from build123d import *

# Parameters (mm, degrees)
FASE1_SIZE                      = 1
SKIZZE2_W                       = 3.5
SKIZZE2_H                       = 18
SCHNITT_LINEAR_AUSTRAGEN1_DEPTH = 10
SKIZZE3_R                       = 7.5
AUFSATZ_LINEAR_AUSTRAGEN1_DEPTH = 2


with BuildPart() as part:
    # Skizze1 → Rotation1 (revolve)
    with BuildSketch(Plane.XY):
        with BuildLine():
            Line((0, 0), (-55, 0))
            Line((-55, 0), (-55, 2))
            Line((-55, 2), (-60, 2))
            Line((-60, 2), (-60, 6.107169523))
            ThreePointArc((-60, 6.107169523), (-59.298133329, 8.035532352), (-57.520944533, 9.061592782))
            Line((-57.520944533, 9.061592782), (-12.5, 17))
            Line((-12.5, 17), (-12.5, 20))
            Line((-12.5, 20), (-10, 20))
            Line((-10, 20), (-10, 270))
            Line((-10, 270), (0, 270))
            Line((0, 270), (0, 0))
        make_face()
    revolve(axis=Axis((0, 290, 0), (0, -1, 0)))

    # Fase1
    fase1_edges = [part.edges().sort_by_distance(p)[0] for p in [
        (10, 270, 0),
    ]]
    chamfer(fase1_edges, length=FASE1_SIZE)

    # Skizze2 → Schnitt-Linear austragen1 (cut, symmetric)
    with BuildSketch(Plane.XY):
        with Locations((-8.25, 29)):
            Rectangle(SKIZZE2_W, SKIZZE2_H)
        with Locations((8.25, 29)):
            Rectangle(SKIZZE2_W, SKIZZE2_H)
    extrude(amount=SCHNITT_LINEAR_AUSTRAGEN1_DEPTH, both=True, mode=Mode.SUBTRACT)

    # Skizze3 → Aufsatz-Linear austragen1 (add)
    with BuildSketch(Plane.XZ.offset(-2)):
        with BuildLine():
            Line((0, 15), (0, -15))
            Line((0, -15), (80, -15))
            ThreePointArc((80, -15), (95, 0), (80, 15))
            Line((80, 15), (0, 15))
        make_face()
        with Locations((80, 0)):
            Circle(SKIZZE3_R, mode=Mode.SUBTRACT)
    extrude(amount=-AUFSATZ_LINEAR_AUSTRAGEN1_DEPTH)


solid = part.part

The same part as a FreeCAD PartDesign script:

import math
import FreeCAD as App
import Part
import Sketcher
Q = App.Units.Quantity


def edges_at(feature, points):
    """Names of the edges that pass closest to the given points."""
    edges = feature.Shape.Edges
    near = lambda p: min(range(len(edges)), key=lambda i: edges[i].distToShape(Part.Vertex(*p))[0])
    return sorted({f"Edge{near(p) + 1}" for p in points})


def add_polygon(sketch, points):
    """Adds a closed chain of lines whose ends are joined by coincident constraints."""
    first, n = sketch.GeometryCount, len(points)
    for a, b in zip(points, points[1:] + points[:1]):
        sketch.addGeometry(Part.LineSegment(App.Vector(*a, 0), App.Vector(*b, 0)), False)
    for i in range(n):
        sketch.addConstraint(Sketcher.Constraint("Coincident", first + i, 2, first + (i + 1) % n, 1))

doc = App.newDocument("Part")
body = doc.addObject("PartDesign::Body", "Body")

# Sketch on XY plane
sketch1 = body.newObject("Sketcher::SketchObject", "Sketch")
sketch1.AttachmentSupport = (doc.getObject("XY_Plane"), [""])
sketch1.MapMode = "FlatFace"
sketch1.addGeometry(Part.LineSegment(App.Vector(-55, 0, 0), App.Vector(0, 0, 0)), False)
sketch1.addGeometry(Part.LineSegment(App.Vector(0, 0, 0), App.Vector(0, 270, 0)), False)
sketch1.addGeometry(Part.LineSegment(App.Vector(0, 270, 0), App.Vector(-10, 270, 0)), False)
sketch1.addGeometry(Part.LineSegment(App.Vector(-10, 270, 0), App.Vector(-10, 20, 0)), False)
sketch1.addGeometry(Part.LineSegment(App.Vector(-10, 20, 0), App.Vector(-12.5, 20, 0)), False)
sketch1.addGeometry(Part.LineSegment(App.Vector(-12.5, 20, 0), App.Vector(-12.5, 17, 0)), False)
sketch1.addGeometry(Part.LineSegment(App.Vector(-12.5, 17, 0), App.Vector(-57.520945, 9.061593, 0)), False)
sketch1.addGeometry(Part.ArcOfCircle(Part.Circle(App.Vector(-57, 6.10717, 0), App.Vector(0, 0, 1), 3), math.radians(100), math.radians(180)), False)
sketch1.addGeometry(Part.LineSegment(App.Vector(-60, 6.10717, 0), App.Vector(-60, 2, 0)), False)
sketch1.addGeometry(Part.LineSegment(App.Vector(-60, 2, 0), App.Vector(-55, 2, 0)), False)
sketch1.addGeometry(Part.LineSegment(App.Vector(-55, 2, 0), App.Vector(-55, 0, 0)), False)
sketch1.addConstraint(Sketcher.Constraint("Coincident", 0, 2, 1, 1))
sketch1.addConstraint(Sketcher.Constraint("Coincident", 1, 2, 2, 1))
sketch1.addConstraint(Sketcher.Constraint("Coincident", 2, 2, 3, 1))
sketch1.addConstraint(Sketcher.Constraint("Coincident", 3, 2, 4, 1))
sketch1.addConstraint(Sketcher.Constraint("Coincident", 4, 2, 5, 1))
sketch1.addConstraint(Sketcher.Constraint("Coincident", 5, 2, 6, 1))
sketch1.addConstraint(Sketcher.Constraint("Tangent", 6, 2, 7, 1))
sketch1.addConstraint(Sketcher.Constraint("Tangent", 7, 2, 8, 1))
sketch1.addConstraint(Sketcher.Constraint("Coincident", 8, 2, 9, 1))
sketch1.addConstraint(Sketcher.Constraint("Coincident", 9, 2, 10, 1))
sketch1.addConstraint(Sketcher.Constraint("Coincident", 10, 2, 0, 1))
sketch1.addConstraint(Sketcher.Constraint("Horizontal", 0))
sketch1.addConstraint(Sketcher.Constraint("Vertical", 1))
sketch1.addConstraint(Sketcher.Constraint("Horizontal", 2))
sketch1.addConstraint(Sketcher.Constraint("Vertical", 3))
sketch1.addConstraint(Sketcher.Constraint("Horizontal", 4))
sketch1.addConstraint(Sketcher.Constraint("Vertical", 5))
sketch1.addConstraint(Sketcher.Constraint("Vertical", 8))
sketch1.addConstraint(Sketcher.Constraint("Horizontal", 9))
sketch1.addConstraint(Sketcher.Constraint("Vertical", 10))
sketch1.addConstraint(Sketcher.Constraint("Coincident", 0, 2, -1, 1))
sketch1.addConstraint(Sketcher.Constraint("Radius", 7, Q("3 mm")))
sketch1.addConstraint(Sketcher.Constraint("DistanceX", 0, 1, 0, 2, Q("55 mm")))
sketch1.addConstraint(Sketcher.Constraint("DistanceX", 2, 2, 2, 1, Q("10 mm")))
sketch1.addConstraint(Sketcher.Constraint("DistanceX", 9, 1, 9, 2, Q("5 mm")))
sketch1.addConstraint(Sketcher.Constraint("DistanceY", 1, 1, 1, 2, Q("270 mm")))
sketch1.addConstraint(Sketcher.Constraint("DistanceY", 3, 2, 3, 1, Q("250 mm")))
sketch1.addConstraint(Sketcher.Constraint("DistanceY", 5, 2, 5, 1, Q("3 mm")))
sketch1.addConstraint(Sketcher.Constraint("DistanceY", 10, 2, 10, 1, Q("2 mm")))
sketch1.addConstraint(Sketcher.Constraint("Angle", 6, Q("-170 deg")))
sketch1.addConstraint(Sketcher.Constraint("DistanceX", 4, 2, 4, 1, Q("2.5 mm")))
revolution = body.newObject("PartDesign::Revolution", "Revolution")
revolution.Profile = sketch1
revolution.ReferenceAxis = (sketch1, ["V_Axis"])
revolution.Angle = 360
doc.recompute()

chamfer = body.newObject("PartDesign::Chamfer", "Chamfer")
chamfer.Base = (revolution, edges_at(revolution, [(10, 270, 0)]))
chamfer.Size = 1

# Sketch on XY plane
sketch2 = body.newObject("Sketcher::SketchObject", "Sketch001")
sketch2.AttachmentSupport = (doc.getObject("XY_Plane"), [""])
sketch2.MapMode = "FlatFace"
add_polygon(sketch2, [(-10, 38), (-10, 20), (-6.5, 20), (-6.5, 38)])  # lines 0-3
add_polygon(sketch2, [(6.5, 38), (6.5, 20), (10, 20), (10, 38)])  # lines 4-7
sketch2.addConstraint(Sketcher.Constraint("Vertical", 0))
sketch2.addConstraint(Sketcher.Constraint("Horizontal", 1))
sketch2.addConstraint(Sketcher.Constraint("Vertical", 2))
sketch2.addConstraint(Sketcher.Constraint("Horizontal", 3))
sketch2.addConstraint(Sketcher.Constraint("Vertical", 4))
sketch2.addConstraint(Sketcher.Constraint("Horizontal", 5))
sketch2.addConstraint(Sketcher.Constraint("Vertical", 6))
sketch2.addConstraint(Sketcher.Constraint("Horizontal", 7))
sketch2.addConstraint(Sketcher.Constraint("Symmetric", 1, 2, 4, 2, -2))
sketch2.addConstraint(Sketcher.Constraint("Symmetric", 3, 2, 6, 2, -2))
sketch2.addConstraint(Sketcher.Constraint("DistanceY", 0, 2, 0, 1, Q("18 mm")))
sketch2.addConstraint(Sketcher.Constraint("DistanceX", 1, 1, 1, 2, Q("3.5 mm")))
sketch2.addConstraint(Sketcher.Constraint("DistanceX", 0, 2, -1, 1, Q("10 mm")))
sketch2.addConstraint(Sketcher.Constraint("DistanceY", -1, 1, 0, 2, Q("20 mm")))
pocket1 = body.newObject("PartDesign::Pocket", "Pocket")
pocket1.Profile = sketch2
pocket1.Length = 20
pocket1.Midplane = True

# Sketch on XZ plane
sketch3 = body.newObject("Sketcher::SketchObject", "Sketch002")
sketch3.AttachmentSupport = (doc.getObject("XZ_Plane"), [""])
sketch3.MapMode = "FlatFace"
sketch3.AttachmentOffset = App.Placement(App.Vector(0, 0, -2), App.Rotation())
sketch3.addGeometry(Part.LineSegment(App.Vector(0, 15, 0), App.Vector(0, -15, 0)), False)
sketch3.addGeometry(Part.LineSegment(App.Vector(0, -15, 0), App.Vector(80, -15, 0)), False)
sketch3.addGeometry(Part.ArcOfCircle(Part.Circle(App.Vector(80, 0, 0), App.Vector(0, 0, 1), 15), math.radians(-90), math.radians(90)), False)
sketch3.addGeometry(Part.LineSegment(App.Vector(80, 15, 0), App.Vector(0, 15, 0)), False)
sketch3.addGeometry(Part.Circle(App.Vector(80, 0, 0), App.Vector(0, 0, 1), 7.5), False)
sketch3.addConstraint(Sketcher.Constraint("Coincident", 0, 2, 1, 1))
sketch3.addConstraint(Sketcher.Constraint("Tangent", 1, 2, 2, 1))
sketch3.addConstraint(Sketcher.Constraint("Tangent", 2, 2, 3, 1))
sketch3.addConstraint(Sketcher.Constraint("Coincident", 3, 2, 0, 1))
sketch3.addConstraint(Sketcher.Constraint("Vertical", 0))
sketch3.addConstraint(Sketcher.Constraint("Horizontal", 1))
sketch3.addConstraint(Sketcher.Constraint("Horizontal", 3))
sketch3.addConstraint(Sketcher.Constraint("Coincident", 4, 3, 2, 3))
sketch3.addConstraint(Sketcher.Constraint("Symmetric", 0, 2, 3, 2, -1, 1))
sketch3.addConstraint(Sketcher.Constraint("Diameter", 4, Q("15 mm")))
sketch3.addConstraint(Sketcher.Constraint("Radius", 2, Q("15 mm")))
sketch3.addConstraint(Sketcher.Constraint("DistanceX", 1, 1, 1, 2, Q("80 mm")))
pad1 = body.newObject("PartDesign::Pad", "Pad")
pad1.Profile = sketch3
pad1.Length = 2
pad1.Reversed = True

doc.recompute()
